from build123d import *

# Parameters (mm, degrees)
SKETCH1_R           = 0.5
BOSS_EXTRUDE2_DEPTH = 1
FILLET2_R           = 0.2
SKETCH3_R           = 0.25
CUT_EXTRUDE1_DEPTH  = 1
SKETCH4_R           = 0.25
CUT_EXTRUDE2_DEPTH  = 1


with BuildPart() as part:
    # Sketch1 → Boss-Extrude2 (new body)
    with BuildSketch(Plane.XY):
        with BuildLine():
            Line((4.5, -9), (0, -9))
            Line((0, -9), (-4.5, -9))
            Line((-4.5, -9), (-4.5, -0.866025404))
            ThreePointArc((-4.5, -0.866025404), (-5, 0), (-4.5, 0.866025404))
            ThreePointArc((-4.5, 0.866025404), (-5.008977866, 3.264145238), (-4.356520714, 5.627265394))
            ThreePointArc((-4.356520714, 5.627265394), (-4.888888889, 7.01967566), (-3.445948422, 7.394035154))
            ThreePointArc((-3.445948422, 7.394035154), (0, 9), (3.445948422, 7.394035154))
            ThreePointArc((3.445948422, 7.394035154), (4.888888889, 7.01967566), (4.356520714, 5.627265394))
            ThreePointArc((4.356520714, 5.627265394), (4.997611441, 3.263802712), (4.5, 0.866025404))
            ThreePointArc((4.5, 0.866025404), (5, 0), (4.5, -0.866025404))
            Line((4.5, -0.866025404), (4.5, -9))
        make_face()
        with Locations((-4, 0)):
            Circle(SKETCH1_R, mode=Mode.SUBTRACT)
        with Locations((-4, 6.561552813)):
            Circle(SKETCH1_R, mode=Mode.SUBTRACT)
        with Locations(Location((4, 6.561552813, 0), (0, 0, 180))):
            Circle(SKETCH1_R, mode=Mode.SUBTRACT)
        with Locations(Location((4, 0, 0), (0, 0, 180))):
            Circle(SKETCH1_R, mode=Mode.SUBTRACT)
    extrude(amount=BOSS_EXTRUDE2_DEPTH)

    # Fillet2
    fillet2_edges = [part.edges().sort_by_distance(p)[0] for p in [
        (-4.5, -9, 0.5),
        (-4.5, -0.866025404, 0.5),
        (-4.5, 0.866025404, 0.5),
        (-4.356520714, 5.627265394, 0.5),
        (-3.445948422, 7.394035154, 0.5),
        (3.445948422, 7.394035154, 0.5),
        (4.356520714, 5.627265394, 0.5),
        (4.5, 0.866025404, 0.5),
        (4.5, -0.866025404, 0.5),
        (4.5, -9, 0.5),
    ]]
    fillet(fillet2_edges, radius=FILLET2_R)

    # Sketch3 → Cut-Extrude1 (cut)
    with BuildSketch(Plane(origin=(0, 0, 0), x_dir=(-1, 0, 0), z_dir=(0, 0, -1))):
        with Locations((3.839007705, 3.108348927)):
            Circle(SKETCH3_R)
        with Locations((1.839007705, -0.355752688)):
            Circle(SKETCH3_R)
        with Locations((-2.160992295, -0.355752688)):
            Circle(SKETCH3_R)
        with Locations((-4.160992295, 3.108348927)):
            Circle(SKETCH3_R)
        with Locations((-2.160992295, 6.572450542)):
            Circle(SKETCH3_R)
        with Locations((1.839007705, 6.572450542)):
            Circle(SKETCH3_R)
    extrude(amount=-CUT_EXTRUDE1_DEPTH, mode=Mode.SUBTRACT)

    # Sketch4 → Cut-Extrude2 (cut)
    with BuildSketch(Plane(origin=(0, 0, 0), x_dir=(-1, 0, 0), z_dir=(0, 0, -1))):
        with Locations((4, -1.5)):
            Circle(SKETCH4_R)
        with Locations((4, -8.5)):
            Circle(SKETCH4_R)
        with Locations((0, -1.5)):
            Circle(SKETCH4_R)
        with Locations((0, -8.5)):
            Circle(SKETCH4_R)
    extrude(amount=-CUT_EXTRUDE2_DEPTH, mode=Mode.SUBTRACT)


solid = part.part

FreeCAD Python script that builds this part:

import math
import FreeCAD as App
import Part
import Sketcher

V = App.Vector
Q = App.Units.Quantity


def edges_at(feature, points):
    """Names of the edges that pass closest to the given points."""
    edges = feature.Shape.Edges
    near = lambda p: min(range(len(edges)), key=lambda i: edges[i].distToShape(Part.Vertex(*p))[0])
    return sorted({f"Edge{near(p) + 1}" for p in points})

doc = App.newDocument("Part")
params = doc.addObject("Spreadsheet::Sheet", "Params")
for row, (alias, value) in enumerate([
    ("sketch1_diameter", "1 mm"),
    ("sketch1_radius", "1 mm"),
    ("sketch1_radius2", "4.5 mm"),
    ("sketch1_width", "9 mm"),
    ("pad1_length", "1 mm"),
    ("fillet_radius", "0.2 mm"),
    ("sketch2_diameter", "0.5 mm"),
    ("pocket1_length", "1 mm"),
    ("sketch3_diameter", "0.5 mm"),
    ("pocket2_length", "1 mm"),
], start=1):
    params.set(f"A{row}", alias)
    params.set(f"B{row}", "=" + value)
    params.setAlias(f"B{row}", alias)

body = doc.addObject("PartDesign::Body", "Body")

sketch1 = doc.addObject("Sketcher::SketchObject", "Sketch")
body.addObject(sketch1)
sketch1.AttachmentSupport = (doc.XY_Plane, [""])
sketch1.MapMode = "FlatFace"
sketch1.addGeometry([
    Part.LineSegment(V(-4.5, -9, 0), V(4.5, -9, 0)),
    Part.LineSegment(V(4.5, -9, 0), V(4.5, -0.866025, 0)),
    Part.ArcOfCircle(Part.Circle(V(4, 0, 0), V(0, 0, 1), 1), math.radians(-60), math.radians(60)),
    Part.ArcOfCircle(Part.Circle(V(-0.264091, 3.105242, 0), V(0, 0, 1), 5.264091), math.radians(-25.174448), math.radians(28.626604)),
    Part.ArcOfCircle(Part.Circle(V(4, 6.561553, 0), V(0, 0, 1), 1), math.radians(-69.113326), math.radians(123.645415)),
    Part.ArcOfCircle(Part.Circle(V(0, 4.5, 0), V(0, 0, 1), 4.5), math.radians(40.024785), math.radians(139.975215)),
    Part.ArcOfCircle(Part.Circle(V(-4, 6.561553, 0), V(0, 0, 1), 1), math.radians(56.354585), math.radians(249.113326)),
    Part.ArcOfCircle(Part.Circle(V(0.160992, 3.108349, 0), V(0, 0, 1), 5.172317), math.radians(150.856434), math.radians(205.69141)),
    Part.ArcOfCircle(Part.Circle(V(-4, 0, 0), V(0, 0, 1), 1), math.radians(120), math.radians(240)),
    Part.LineSegment(V(-4.5, -0.866025, 0), V(-4.5, -9, 0)),
    Part.Circle(V(4, 0, 0), V(0, 0, 1), 0.5),
    Part.Circle(V(-4, 0, 0), V(0, 0, 1), 0.5),
    Part.Circle(V(4, 6.561553, 0), V(0, 0, 1), 0.5),
    Part.Circle(V(-4, 6.561553, 0), V(0, 0, 1), 0.5),
], False)
sketch1.addConstraint([
    Sketcher.Constraint("Coincident", 0, 2, 1, 1),
    Sketcher.Constraint("Coincident", 1, 2, 2, 1),
    Sketcher.Constraint("Coincident", 2, 2, 3, 1),
    Sketcher.Constraint("Coincident", 3, 2, 4, 1),
    Sketcher.Constraint("Coincident", 4, 2, 5, 1),
    Sketcher.Constraint("Coincident", 5, 2, 6, 1),
    Sketcher.Constraint("Coincident", 6, 2, 7, 1),
    Sketcher.Constraint("Coincident", 7, 2, 8, 1),
    Sketcher.Constraint("Coincident", 8, 2, 9, 1),
    Sketcher.Constraint("Coincident", 9, 2, 0, 1),
    Sketcher.Constraint("Horizontal", 0),
    Sketcher.Constraint("Vertical", 1),
    Sketcher.Constraint("Vertical", 9),
    Sketcher.Constraint("Coincident", 10, 3, 2, 3),
    Sketcher.Constraint("Coincident", 11, 3, 8, 3),
    Sketcher.Constraint("Coincident", 12, 3, 4, 3),
    Sketcher.Constraint("Coincident", 13, 3, 6, 3),
    Sketcher.Constraint("Equal", 2, 4),
    Sketcher.Constraint("Equal", 4, 6),
    Sketcher.Constraint("Equal", 6, 8),
    Sketcher.Constraint("Equal", 10, 11),
    Sketcher.Constraint("Equal", 11, 12),
    Sketcher.Constraint("Equal", 12, 13),
    Sketcher.Constraint("Symmetric", 2, 3, 8, 3, -1, 1),
    Sketcher.Constraint("Symmetric", 4, 3, 6, 3, -2),
    Sketcher.Constraint("Symmetric", 2, 2, 7, 2, -2),
    Sketcher.Constraint("PointOnObject", 5, 3, -2),
    Sketcher.Constraint("Horizontal", 3, 2, 6, 2),
    Sketcher.Constraint("Horizontal", 1, 2, 8, 2),
    Sketcher.Constraint("Vertical", 2, 3, 4, 3),
    Sketcher.Constraint("Vertical", 1, 2, 2, 2),
    Sketcher.Constraint("Diameter", 10, Q("1 mm")),
    Sketcher.Constraint("Radius", 2, Q("1 mm")),
    Sketcher.Constraint("Radius", 5, Q("4.5 mm")),
    Sketcher.Constraint("DistanceX", 0, 1, 0, 2, Q("9 mm")),
    Sketcher.Constraint("DistanceX", -1, 1, 2, 3, Q("4 mm")),
    Sketcher.Constraint("DistanceY", 0, 2, -1, 1, Q("9 mm")),
    Sketcher.Constraint("DistanceY", -1, 1, 5, 3, Q("4.5 mm")),
    Sketcher.Constraint("Radius", 3, Q("5.264091 mm")),
    Sketcher.Constraint("Radius", 7, Q("5.172317 mm")),
    Sketcher.Constraint("DistanceX", 3, 3, -1, 1, Q("0.264091 mm")),
    Sketcher.Constraint("DistanceY", -1, 1, 7, 3, Q("3.108349 mm")),
])
sketch1.setExpression("Constraints[31]", "Params.sketch1_diameter")
sketch1.setExpression("Constraints[32]", "Params.sketch1_radius")
sketch1.setExpression("Constraints[33]", "Params.sketch1_radius2")
sketch1.setExpression("Constraints[34]", "Params.sketch1_width")
pad1 = doc.addObject("PartDesign::Pad", "Pad")
body.addObject(pad1)
pad1.Profile = sketch1
pad1.setExpression("Length", "Params.pad1_length")
doc.recompute()

fillet = doc.addObject("PartDesign::Fillet", "Fillet")
body.addObject(fillet)
fillet.Base = (pad1, edges_at(pad1, [
    (-4.5, -9, 0.5),
    (-4.5, -0.866, 0.5),
    (-4.5, 0.866, 0.5),
    (-4.357, 5.627, 0.5),
    (-3.446, 7.394, 0.5),
    (3.446, 7.394, 0.5),
    (4.357, 5.627, 0.5),
    (4.5, 0.866, 0.5),
    (4.5, -0.866, 0.5),
    (4.5, -9, 0.5),
]))
fillet.setExpression("Radius", "Params.fillet_radius")

sketch2 = doc.addObject("Sketcher::SketchObject", "Sketch001")
body.addObject(sketch2)
sketch2.AttachmentSupport = (doc.XY_Plane, [""])
sketch2.MapMode = "FlatFace"
sketch2.addGeometry([
    Part.Circle(V(-3.84, 3.11, 0), V(0, 0, 1), 0.25),
    Part.Circle(V(-1.84, -0.36, 0), V(0, 0, 1), 0.25),
    Part.Circle(V(2.16, -0.36, 0), V(0, 0, 1), 0.25),
    Part.Circle(V(4.16, 3.11, 0), V(0, 0, 1), 0.25),
    Part.Circle(V(2.16, 6.57, 0), V(0, 0, 1), 0.25),
    Part.Circle(V(-1.84, 6.57, 0), V(0, 0, 1), 0.25),
], False)
sketch2.addConstraint([
    Sketcher.Constraint("Equal", 0, 1),
    Sketcher.Constraint("Equal", 1, 2),
    Sketcher.Constraint("Equal", 2, 3),
    Sketcher.Constraint("Equal", 3, 4),
    Sketcher.Constraint("Equal", 4, 5),
    Sketcher.Constraint("Horizontal", 1, 3, 2, 3),
    Sketcher.Constraint("Horizontal", 0, 3, 3, 3),
    Sketcher.Constraint("Horizontal", 4, 3, 5, 3),
    Sketcher.Constraint("Vertical", 2, 3, 4, 3),
    Sketcher.Constraint("Vertical", 1, 3, 5, 3),
    Sketcher.Constraint("Diameter", 0, Q("0.5 mm")),
    Sketcher.Constraint("DistanceX", 0, 3, 1, 3, Q("2 mm")),
    Sketcher.Constraint("DistanceX", 1, 3, 2, 3, Q("4 mm")),
    Sketcher.Constraint("DistanceX", 2, 3, 3, 3, Q("2 mm")),
    Sketcher.Constraint("DistanceY", 1, 3, 0, 3, Q("3.464102 mm")),
    Sketcher.Constraint("DistanceY", 3, 3, 4, 3, Q("3.464102 mm")),
    Sketcher.Constraint("DistanceY", -1, 1, 0, 3, Q("3.108349 mm")),
    Sketcher.Constraint("DistanceX", 0, 3, -1, 1, Q("3.839008 mm")),
])
sketch2.setExpression("Constraints[10]", "Params.sketch2_diameter")
pocket1 = doc.addObject("PartDesign::Pocket", "Pocket")
body.addObject(pocket1)
pocket1.Profile = sketch2
pocket1.setExpression("Length", "Params.pocket1_length")
pocket1.Reversed = True

sketch3 = doc.addObject("Sketcher::SketchObject", "Sketch002")
body.addObject(sketch3)
sketch3.AttachmentSupport = (doc.XY_Plane, [""])
sketch3.MapMode = "FlatFace"
sketch3.addGeometry([
    Part.Circle(V(-4, -1.5, 0), V(0, 0, 1), 0.25),
    Part.Circle(V(-4, -8.5, 0), V(0, 0, 1), 0.25),
    Part.Circle(V(0, -1.5, 0), V(0, 0, 1), 0.25),
    Part.Circle(V(0, -8.5, 0), V(0, 0, 1), 0.25),
], False)
sketch3.addConstraint([
    Sketcher.Constraint("Equal", 0, 1),
    Sketcher.Constraint("Equal", 1, 2),
    Sketcher.Constraint("Equal", 2, 3),
    Sketcher.Constraint("PointOnObject", 2, 3, -2),
    Sketcher.Constraint("PointOnObject", 3, 3, -2),
    Sketcher.Constraint("Horizontal", 0, 3, 2, 3),
    Sketcher.Constraint("Horizontal", 1, 3, 3, 3),
    Sketcher.Constraint("Vertical", 0, 3, 1, 3),
    Sketcher.Constraint("Diameter", 0, Q("0.5 mm")),
    Sketcher.Constraint("DistanceX", 0, 3, -1, 1, Q("4 mm")),
    Sketcher.Constraint("DistanceY", 1, 3, 0, 3, Q("7 mm")),
    Sketcher.Constraint("DistanceY", 0, 3, -1, 1, Q("1.5 mm")),
])
sketch3.setExpression("Constraints[8]", "Params.sketch3_diameter")
pocket2 = doc.addObject("PartDesign::Pocket", "Pocket001")
body.addObject(pocket2)
pocket2.Profile = sketch3
pocket2.setExpression("Length", "Params.pocket2_length")
pocket2.Reversed = True

doc.recompute()
